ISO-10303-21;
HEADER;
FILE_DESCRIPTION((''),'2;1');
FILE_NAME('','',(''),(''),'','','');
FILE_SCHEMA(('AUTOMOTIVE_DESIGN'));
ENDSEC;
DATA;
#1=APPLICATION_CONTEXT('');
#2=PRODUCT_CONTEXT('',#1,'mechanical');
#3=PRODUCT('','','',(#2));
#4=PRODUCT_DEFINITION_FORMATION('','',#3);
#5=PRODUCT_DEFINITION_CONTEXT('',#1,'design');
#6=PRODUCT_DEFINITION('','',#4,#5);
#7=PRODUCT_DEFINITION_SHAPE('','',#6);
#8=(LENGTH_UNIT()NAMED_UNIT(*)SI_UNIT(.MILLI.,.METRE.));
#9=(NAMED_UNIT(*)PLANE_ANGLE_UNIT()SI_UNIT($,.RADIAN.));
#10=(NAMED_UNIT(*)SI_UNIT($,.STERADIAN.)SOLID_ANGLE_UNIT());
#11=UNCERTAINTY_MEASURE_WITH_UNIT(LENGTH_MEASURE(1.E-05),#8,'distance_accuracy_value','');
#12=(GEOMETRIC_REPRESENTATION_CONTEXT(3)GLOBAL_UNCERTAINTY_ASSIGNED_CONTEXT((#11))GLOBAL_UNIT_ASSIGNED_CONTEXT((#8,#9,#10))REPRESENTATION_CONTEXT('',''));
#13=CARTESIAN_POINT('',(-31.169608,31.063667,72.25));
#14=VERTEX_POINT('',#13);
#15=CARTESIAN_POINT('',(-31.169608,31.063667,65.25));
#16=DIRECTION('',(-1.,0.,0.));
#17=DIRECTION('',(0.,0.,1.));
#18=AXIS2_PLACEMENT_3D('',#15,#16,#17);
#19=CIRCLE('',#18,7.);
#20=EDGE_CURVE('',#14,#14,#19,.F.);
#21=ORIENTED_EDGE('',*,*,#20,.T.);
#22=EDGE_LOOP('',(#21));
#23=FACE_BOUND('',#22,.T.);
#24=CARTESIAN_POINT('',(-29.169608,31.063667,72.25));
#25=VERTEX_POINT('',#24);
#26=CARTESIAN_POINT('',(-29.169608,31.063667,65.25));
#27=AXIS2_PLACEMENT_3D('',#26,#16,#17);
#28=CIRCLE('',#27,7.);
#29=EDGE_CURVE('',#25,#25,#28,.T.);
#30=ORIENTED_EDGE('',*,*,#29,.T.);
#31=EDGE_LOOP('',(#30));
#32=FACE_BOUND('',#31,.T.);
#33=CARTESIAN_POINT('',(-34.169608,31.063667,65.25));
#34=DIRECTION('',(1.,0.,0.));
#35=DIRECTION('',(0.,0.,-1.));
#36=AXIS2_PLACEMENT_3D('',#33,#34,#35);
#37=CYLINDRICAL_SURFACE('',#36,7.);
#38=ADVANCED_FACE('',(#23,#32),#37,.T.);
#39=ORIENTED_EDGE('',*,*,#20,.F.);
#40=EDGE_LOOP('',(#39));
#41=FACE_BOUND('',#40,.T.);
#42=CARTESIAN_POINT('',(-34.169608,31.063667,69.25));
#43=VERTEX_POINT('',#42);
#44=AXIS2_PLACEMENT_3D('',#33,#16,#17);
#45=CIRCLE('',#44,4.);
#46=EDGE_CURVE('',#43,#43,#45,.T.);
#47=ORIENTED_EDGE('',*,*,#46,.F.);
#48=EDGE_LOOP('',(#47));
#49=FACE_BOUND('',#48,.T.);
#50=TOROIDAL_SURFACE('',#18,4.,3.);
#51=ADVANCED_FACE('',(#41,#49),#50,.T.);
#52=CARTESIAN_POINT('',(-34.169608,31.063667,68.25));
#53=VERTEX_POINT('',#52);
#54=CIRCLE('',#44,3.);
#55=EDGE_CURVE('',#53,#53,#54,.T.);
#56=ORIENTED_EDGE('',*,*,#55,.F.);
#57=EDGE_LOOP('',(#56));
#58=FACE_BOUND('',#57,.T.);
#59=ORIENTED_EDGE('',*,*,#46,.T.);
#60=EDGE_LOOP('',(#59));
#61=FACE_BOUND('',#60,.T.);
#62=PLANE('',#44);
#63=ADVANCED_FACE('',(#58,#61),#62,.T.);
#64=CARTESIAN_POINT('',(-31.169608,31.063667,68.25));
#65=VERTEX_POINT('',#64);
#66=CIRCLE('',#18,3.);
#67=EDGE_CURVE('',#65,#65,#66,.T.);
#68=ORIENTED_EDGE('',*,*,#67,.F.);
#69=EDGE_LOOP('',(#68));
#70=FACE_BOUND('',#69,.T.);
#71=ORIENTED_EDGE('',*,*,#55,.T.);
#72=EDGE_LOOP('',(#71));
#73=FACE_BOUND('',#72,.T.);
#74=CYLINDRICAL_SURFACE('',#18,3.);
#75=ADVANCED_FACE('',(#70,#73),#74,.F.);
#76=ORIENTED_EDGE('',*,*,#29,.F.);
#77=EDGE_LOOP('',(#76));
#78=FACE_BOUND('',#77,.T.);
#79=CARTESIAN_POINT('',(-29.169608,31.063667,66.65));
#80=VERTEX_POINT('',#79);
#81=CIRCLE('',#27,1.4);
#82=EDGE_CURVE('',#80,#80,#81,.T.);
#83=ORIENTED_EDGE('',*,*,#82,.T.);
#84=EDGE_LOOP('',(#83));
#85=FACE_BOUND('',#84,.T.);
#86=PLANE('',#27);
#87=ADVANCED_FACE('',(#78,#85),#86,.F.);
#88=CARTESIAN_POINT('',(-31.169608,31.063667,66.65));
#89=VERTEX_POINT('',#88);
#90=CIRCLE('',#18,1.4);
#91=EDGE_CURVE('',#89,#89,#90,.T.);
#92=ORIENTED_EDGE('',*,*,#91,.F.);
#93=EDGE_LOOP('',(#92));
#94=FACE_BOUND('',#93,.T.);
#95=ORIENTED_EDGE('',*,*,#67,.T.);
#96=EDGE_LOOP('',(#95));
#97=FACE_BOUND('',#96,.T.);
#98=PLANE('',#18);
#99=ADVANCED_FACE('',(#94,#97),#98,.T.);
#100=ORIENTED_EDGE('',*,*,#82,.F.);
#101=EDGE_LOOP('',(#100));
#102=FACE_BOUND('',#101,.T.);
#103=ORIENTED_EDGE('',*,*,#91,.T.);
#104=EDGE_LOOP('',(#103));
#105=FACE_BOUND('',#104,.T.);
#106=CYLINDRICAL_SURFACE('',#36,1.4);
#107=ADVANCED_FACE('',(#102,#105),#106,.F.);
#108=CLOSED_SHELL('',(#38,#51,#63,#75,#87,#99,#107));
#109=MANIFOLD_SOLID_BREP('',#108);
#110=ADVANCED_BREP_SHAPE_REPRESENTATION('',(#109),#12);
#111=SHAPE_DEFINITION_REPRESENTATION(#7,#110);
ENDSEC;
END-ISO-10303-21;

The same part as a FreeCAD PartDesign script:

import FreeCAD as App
import Part
import Sketcher
from FreeCAD import Vector
Q = App.Units.Quantity


def edges_at(feature, points):
    """Names of the edges that pass closest to the given points."""
    edges = feature.Shape.Edges
    near = lambda p: min(range(len(edges)), key=lambda i: edges[i].distToShape(Part.Vertex(*p))[0])
    return sorted({f"Edge{near(p) + 1}" for p in points})

doc = App.newDocument("Part")
body = doc.addObject("PartDesign::Body", "Body")

sketch1 = body.newObject("Sketcher::SketchObject", "Sketch")
sketch1.AttachmentSupport = (doc.getObject("YZ_Plane"), [""])
sketch1.MapMode = "FlatFace"
sketch1.AttachmentOffset = App.Placement(Vector(0, 0, -29.169608), App.Rotation())
sketch1.addGeometry([
    Part.Circle(Vector(31.1, 65.2, 0), Vector(0, 0, 1), 7),
    Part.Circle(Vector(31.1, 65.2, 0), Vector(0, 0, 1), 1.4),
], False)
sketch1.addConstraint([
    Sketcher.Constraint("Coincident", 1, 3, 0, 3),
    Sketcher.Constraint("Diameter", 0, Q("14 mm")),
    Sketcher.Constraint("Diameter", 1, Q("2.8 mm")),
    Sketcher.Constraint("DistanceY", -1, 1, 0, 3, Q("65.25 mm")),
    Sketcher.Constraint("DistanceX", -1, 1, 0, 3, Q("31.063667 mm")),
])
pad1 = body.newObject("PartDesign::Pad", "Pad")
pad1.Profile = sketch1
pad1.Length = 5
pad1.Reversed = True
doc.recompute()

fillet = body.newObject("PartDesign::Fillet", "Fillet")
fillet.Base = (pad1, edges_at(pad1, [(-34.17, 31.064, 58.25)]))
fillet.Radius = 3

sketch2 = body.newObject("Sketcher::SketchObject", "Sketch001")
sketch2.AttachmentSupport = (doc.getObject("YZ_Plane"), [""])
sketch2.MapMode = "FlatFace"
sketch2.AttachmentOffset = App.Placement(Vector(0, 0, -34.169608), App.Rotation())
sketch2.addGeometry(Part.Circle(Vector(31.1, 65.2, 0), Vector(0, 0, 1), 3), False)
sketch2.addConstraint([
    Sketcher.Constraint("Diameter", 0, Q("6 mm")),
    Sketcher.Constraint("DistanceY", -1, 1, 0, 3, Q("65.25 mm")),
    Sketcher.Constraint("DistanceX", -1, 1, 0, 3, Q("31.063667 mm")),
])
pocket1 = body.newObject("PartDesign::Pocket", "Pocket")
pocket1.Profile = sketch2
pocket1.Length = 3
pocket1.Reversed = True

doc.recompute()
